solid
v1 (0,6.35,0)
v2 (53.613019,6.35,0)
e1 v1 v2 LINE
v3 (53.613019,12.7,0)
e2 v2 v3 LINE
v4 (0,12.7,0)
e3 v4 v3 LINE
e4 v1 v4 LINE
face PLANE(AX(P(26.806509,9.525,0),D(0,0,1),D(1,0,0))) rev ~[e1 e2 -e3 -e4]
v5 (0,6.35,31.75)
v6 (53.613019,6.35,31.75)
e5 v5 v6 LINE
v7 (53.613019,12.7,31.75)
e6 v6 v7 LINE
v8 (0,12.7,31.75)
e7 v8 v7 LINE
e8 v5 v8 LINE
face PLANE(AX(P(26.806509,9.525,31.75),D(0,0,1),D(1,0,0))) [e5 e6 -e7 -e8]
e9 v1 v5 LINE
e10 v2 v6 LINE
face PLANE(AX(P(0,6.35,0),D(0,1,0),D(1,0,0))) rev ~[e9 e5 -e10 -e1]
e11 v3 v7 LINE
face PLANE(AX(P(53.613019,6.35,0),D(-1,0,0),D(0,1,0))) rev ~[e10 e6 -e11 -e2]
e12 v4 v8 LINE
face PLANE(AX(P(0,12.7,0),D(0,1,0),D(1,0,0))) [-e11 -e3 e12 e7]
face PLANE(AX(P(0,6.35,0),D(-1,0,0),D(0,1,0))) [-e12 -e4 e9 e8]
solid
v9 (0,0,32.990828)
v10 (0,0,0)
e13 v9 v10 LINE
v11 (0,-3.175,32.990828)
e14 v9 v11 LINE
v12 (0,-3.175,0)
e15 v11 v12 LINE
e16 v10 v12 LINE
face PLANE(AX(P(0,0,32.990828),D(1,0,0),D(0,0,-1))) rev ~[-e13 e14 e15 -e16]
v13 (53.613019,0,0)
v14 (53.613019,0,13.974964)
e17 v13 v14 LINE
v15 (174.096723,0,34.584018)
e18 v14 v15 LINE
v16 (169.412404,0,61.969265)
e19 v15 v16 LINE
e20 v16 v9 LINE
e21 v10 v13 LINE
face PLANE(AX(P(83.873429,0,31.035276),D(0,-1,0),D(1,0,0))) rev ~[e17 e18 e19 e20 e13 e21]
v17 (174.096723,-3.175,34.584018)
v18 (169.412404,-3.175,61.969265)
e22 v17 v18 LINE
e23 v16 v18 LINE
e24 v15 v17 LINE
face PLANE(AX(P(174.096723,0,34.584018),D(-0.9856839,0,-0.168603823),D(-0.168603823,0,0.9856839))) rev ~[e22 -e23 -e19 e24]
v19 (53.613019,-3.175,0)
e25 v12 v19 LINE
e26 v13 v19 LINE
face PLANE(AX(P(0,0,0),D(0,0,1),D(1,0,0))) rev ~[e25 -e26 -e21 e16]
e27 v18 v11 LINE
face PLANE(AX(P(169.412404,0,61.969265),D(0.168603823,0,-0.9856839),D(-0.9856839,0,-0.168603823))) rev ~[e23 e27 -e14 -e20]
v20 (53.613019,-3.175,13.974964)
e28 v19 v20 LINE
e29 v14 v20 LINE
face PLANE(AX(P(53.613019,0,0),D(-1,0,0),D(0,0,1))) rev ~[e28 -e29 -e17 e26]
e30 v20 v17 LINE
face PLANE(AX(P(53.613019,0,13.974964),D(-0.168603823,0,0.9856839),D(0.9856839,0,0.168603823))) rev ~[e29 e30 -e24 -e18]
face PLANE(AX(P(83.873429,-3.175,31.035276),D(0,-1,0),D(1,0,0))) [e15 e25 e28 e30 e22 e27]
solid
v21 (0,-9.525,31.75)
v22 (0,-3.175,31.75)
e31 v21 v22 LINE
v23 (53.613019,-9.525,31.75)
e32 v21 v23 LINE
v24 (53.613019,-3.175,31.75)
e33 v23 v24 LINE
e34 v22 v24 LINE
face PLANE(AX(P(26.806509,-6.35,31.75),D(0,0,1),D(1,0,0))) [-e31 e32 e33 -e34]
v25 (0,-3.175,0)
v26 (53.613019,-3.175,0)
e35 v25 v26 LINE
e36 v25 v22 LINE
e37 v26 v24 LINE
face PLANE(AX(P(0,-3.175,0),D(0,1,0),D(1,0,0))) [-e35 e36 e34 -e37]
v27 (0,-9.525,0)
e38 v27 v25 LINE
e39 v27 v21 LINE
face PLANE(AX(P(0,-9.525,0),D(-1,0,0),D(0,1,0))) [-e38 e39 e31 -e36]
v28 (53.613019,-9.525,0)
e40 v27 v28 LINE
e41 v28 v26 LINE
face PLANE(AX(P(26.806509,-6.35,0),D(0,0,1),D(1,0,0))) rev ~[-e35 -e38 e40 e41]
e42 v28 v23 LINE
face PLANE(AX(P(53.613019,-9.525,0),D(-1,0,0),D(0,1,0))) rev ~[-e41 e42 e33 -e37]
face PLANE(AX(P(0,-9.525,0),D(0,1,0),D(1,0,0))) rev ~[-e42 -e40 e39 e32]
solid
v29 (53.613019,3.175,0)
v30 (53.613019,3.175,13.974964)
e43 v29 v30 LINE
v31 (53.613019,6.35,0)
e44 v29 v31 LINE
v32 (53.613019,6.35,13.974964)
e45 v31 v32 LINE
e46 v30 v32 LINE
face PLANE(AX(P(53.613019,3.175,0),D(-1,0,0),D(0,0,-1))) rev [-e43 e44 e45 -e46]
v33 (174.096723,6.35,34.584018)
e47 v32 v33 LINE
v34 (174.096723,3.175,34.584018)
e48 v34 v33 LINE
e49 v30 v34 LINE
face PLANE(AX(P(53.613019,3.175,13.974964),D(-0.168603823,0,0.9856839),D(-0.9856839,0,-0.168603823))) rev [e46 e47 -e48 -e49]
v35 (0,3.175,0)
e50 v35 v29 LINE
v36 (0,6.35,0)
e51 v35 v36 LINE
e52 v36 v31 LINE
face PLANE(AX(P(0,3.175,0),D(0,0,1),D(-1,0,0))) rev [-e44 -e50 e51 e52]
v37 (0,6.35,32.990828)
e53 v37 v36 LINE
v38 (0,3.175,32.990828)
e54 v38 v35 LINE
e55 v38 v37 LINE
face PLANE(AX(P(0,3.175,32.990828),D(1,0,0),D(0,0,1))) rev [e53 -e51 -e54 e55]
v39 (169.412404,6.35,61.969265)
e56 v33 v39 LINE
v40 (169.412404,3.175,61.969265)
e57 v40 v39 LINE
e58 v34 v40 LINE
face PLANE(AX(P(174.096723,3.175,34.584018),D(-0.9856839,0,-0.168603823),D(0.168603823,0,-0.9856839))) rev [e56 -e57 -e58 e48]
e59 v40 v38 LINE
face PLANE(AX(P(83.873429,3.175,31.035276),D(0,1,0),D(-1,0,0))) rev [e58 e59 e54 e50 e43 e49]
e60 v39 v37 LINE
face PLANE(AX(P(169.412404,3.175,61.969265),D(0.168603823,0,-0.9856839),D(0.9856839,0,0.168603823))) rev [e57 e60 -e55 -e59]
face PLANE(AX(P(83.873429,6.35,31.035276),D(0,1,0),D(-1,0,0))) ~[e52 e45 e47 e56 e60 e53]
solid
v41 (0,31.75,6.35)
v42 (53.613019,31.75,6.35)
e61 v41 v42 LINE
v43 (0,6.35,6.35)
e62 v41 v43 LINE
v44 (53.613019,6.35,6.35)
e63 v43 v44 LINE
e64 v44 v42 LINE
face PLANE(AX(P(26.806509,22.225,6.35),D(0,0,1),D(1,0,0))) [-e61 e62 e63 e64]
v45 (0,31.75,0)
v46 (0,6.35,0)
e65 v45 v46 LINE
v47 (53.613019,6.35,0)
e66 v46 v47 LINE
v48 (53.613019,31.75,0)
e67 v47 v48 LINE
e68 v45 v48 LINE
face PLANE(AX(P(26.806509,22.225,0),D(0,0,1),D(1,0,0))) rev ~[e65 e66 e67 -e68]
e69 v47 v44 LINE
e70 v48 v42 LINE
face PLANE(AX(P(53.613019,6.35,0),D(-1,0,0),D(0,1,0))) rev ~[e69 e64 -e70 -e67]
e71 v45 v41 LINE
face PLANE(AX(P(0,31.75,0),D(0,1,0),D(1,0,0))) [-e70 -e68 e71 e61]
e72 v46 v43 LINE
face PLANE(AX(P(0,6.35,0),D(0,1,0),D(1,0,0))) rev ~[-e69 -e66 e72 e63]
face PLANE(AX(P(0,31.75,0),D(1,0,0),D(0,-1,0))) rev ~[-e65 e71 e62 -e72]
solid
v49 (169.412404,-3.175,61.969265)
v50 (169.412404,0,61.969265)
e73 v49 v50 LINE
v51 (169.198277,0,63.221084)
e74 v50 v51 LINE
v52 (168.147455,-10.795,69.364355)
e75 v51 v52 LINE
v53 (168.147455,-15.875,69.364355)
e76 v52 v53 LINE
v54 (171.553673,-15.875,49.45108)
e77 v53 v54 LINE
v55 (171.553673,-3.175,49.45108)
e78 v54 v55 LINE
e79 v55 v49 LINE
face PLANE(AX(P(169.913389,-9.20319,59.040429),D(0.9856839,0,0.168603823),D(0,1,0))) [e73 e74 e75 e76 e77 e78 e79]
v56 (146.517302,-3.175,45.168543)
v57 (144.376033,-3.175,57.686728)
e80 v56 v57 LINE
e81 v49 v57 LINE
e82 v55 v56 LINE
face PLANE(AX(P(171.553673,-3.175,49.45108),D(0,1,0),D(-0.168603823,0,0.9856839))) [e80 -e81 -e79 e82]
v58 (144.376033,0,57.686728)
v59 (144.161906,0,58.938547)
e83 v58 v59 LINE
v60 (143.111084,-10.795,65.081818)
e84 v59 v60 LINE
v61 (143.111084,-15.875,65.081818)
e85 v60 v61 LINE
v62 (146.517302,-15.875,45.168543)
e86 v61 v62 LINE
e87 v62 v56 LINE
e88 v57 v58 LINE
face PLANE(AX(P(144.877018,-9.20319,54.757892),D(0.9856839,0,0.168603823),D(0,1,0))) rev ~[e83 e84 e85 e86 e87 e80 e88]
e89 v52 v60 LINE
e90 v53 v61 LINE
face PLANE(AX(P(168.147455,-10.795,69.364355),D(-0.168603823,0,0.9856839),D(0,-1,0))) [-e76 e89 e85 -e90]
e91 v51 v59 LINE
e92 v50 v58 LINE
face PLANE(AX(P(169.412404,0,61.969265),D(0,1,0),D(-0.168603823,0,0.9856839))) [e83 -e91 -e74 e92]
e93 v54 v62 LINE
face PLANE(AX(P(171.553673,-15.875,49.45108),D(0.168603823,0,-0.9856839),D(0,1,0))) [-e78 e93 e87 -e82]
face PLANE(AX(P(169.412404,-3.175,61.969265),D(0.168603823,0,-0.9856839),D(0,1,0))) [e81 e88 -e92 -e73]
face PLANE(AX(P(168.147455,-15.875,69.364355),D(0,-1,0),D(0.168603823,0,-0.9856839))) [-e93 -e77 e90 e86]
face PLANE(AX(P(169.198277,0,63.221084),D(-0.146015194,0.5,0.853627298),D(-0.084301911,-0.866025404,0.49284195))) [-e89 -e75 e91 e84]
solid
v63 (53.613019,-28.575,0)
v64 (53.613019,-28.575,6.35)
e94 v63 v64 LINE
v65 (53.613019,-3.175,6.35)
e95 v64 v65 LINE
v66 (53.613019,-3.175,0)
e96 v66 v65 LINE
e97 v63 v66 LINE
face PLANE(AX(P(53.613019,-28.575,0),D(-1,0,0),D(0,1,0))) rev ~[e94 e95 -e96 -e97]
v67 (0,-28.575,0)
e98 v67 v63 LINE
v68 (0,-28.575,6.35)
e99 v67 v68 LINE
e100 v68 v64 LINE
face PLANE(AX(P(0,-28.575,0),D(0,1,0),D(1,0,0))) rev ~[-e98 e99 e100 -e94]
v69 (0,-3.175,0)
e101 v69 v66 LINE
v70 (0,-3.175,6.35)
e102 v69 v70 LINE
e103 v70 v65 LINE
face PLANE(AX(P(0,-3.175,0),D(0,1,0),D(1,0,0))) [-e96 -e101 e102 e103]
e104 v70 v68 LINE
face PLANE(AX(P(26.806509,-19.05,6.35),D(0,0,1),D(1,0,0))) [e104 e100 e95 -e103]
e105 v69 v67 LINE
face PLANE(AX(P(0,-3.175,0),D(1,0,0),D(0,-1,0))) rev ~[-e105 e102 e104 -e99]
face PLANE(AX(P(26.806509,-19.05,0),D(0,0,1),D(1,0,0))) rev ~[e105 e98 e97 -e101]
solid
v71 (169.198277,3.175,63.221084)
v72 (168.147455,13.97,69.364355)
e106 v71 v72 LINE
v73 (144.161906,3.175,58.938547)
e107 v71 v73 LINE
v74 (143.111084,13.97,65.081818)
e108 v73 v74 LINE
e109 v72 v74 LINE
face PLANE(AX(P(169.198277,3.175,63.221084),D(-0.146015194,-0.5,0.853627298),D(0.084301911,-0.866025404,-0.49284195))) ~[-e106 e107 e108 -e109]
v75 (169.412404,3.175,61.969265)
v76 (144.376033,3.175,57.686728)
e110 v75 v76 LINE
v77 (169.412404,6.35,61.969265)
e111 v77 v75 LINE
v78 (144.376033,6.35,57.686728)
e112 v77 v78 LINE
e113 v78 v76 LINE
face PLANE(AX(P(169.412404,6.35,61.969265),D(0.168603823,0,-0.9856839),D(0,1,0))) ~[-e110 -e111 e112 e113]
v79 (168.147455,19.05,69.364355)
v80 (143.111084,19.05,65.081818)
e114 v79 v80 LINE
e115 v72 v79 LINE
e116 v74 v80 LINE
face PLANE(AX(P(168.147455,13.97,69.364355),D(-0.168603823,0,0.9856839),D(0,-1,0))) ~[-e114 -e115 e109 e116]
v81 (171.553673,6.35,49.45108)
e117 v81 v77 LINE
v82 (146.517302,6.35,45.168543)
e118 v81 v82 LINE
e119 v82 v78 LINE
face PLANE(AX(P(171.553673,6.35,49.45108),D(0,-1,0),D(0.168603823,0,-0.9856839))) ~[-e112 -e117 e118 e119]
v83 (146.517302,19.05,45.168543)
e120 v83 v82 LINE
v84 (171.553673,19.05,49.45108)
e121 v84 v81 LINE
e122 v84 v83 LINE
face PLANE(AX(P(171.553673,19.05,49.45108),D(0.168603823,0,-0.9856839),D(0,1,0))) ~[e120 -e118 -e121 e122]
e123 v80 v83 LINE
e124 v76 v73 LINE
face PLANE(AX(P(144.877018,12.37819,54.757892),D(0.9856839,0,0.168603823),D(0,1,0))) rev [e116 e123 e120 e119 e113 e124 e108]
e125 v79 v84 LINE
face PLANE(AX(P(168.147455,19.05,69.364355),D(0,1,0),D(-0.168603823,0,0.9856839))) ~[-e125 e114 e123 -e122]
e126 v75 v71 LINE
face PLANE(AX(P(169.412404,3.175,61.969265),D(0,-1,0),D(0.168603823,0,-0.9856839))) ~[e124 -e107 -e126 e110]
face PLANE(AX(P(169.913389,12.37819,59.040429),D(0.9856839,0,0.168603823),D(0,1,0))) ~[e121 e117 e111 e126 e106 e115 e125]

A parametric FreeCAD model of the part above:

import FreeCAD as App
import Part
import Sketcher

V = App.Vector
Q = App.Units.Quantity

doc = App.newDocument("Part")
body = doc.addObject("PartDesign::Body", "Body")

# Sketch on XZ plane
sketch1 = doc.addObject("Sketcher::SketchObject", "Sketch")
body.addObject(sketch1)
sketch1.AttachmentSupport = (doc.XZ_Plane, [""])
sketch1.MapMode = "FlatFace"
sketch1.addGeometry([
    Part.LineSegment(V(0, 32.990828, 0), V(0, 0, 0)),  # 0
    Part.LineSegment(V(0, 0, 0), V(53.613019, 0, 0)),  # 1
    Part.LineSegment(V(53.613019, 0, 0), V(53.613019, 13.974964, 0)),  # 2
    Part.LineSegment(V(53.613019, 13.974964, 0), V(174.096723, 34.584018, 0)),  # 3
    Part.LineSegment(V(174.096723, 34.584018, 0), V(169.412404, 61.969265, 0)),  # 4
    Part.LineSegment(V(169.412404, 61.969265, 0), V(0, 32.990828, 0)),  # 5
], False)
sketch1.addConstraint([
    Sketcher.Constraint("Coincident", 0, 2, 1, 1),
    Sketcher.Constraint("Coincident", 1, 2, 2, 1),
    Sketcher.Constraint("Coincident", 2, 2, 3, 1),
    Sketcher.Constraint("Coincident", 3, 2, 4, 1),
    Sketcher.Constraint("Coincident", 4, 2, 5, 1),
    Sketcher.Constraint("Coincident", 5, 2, 0, 1),
    Sketcher.Constraint("Vertical", 0),
    Sketcher.Constraint("Horizontal", 1),
    Sketcher.Constraint("Vertical", 2),
    Sketcher.Constraint("Coincident", 0, 2, -1, 1),
    Sketcher.Constraint("Perpendicular", 3, 4),
    Sketcher.Constraint("Perpendicular", 4, 5),
    Sketcher.Constraint("DistanceX", 1, 1, 1, 2, Q("53.613019 mm")),
    Sketcher.Constraint("DistanceY", 0, 2, 0, 1, Q("32.990828 mm")),
    Sketcher.Constraint("DistanceY", 2, 2, 4, 2, Q("47.994301 mm")),
    Sketcher.Constraint("Distance", 4, Q("27.782991 mm")),
    Sketcher.Constraint("DistanceY", 2, 1, 2, 2, Q("13.974964 mm")),
])
pad1 = doc.addObject("PartDesign::Pad", "Pad")
body.addObject(pad1)
pad1.Profile = sketch1
pad1.Length = Q("0.125 in")
body2 = doc.addObject("PartDesign::Body", "Body001")

# Sketch on an angled plane
sketch2 = doc.addObject("Sketcher::SketchObject", "Sketch001")
body2.addObject(sketch2)
sketch2.Placement = App.Placement(V(174.895152, 0, 29.916276), App.Rotation(V(0, 1, 0), V(-0.168603823, 0, 0.9856839), V(0.9856839, 0, 0.168603823), "ZXY"))
sketch2.addGeometry([
    Part.LineSegment(V(-3.175, 32.518528, 0), V(0, 32.518528, 0)),  # 0
    Part.LineSegment(V(0, 32.518528, 0), V(0, 33.788528, 0)),  # 1
    Part.LineSegment(V(0, 33.788528, 0), V(-10.795, 40.021024, 0)),  # 2
    Part.LineSegment(V(-10.795, 40.021024, 0), V(-15.875, 40.021024, 0)),  # 3
    Part.LineSegment(V(-15.875, 40.021024, 0), V(-15.875, 19.818528, 0)),  # 4
    Part.LineSegment(V(-15.875, 19.818528, 0), V(-3.175, 19.818528, 0)),  # 5
    Part.LineSegment(V(-3.175, 19.818528, 0), V(-3.175, 32.518528, 0)),  # 6
], False)
sketch2.addConstraint([
    Sketcher.Constraint("Coincident", 0, 2, 1, 1),
    Sketcher.Constraint("Coincident", 1, 2, 2, 1),
    Sketcher.Constraint("Coincident", 2, 2, 3, 1),
    Sketcher.Constraint("Coincident", 3, 2, 4, 1),
    Sketcher.Constraint("Coincident", 4, 2, 5, 1),
    Sketcher.Constraint("Coincident", 5, 2, 6, 1),
    Sketcher.Constraint("Coincident", 6, 2, 0, 1),
    Sketcher.Constraint("Horizontal", 0),
    Sketcher.Constraint("Vertical", 1),
    Sketcher.Constraint("Horizontal", 3),
    Sketcher.Constraint("Vertical", 4),
    Sketcher.Constraint("Horizontal", 5),
    Sketcher.Constraint("Vertical", 6),
    Sketcher.Constraint("PointOnObject", 0, 2, -2),
    Sketcher.Constraint("Equal", 5, 6),
    Sketcher.Constraint("DistanceX", 3, 2, 3, 1, Q("0.2 in")),
    Sketcher.Constraint("DistanceX", 5, 1, 5, 2, Q("0.5 in")),
    Sketcher.Constraint("Angle", 2, Q("150 deg")),
    Sketcher.Constraint("DistanceY", 1, 1, 1, 2, Q("0.05 in")),
    Sketcher.Constraint("DistanceX", 0, 1, 0, 2, Q("0.125 in")),
    Sketcher.Constraint("DistanceY", -1, 1, 0, 2, Q("32.518528 mm")),
])
pad2 = doc.addObject("PartDesign::Pad", "Pad001")
body2.addObject(pad2)
pad2.Profile = sketch2
pad2.Length = Q("1 in")
pad2.Reversed = True
body3 = doc.addObject("PartDesign::Body", "Body002")
doc.recompute()

mirroring = doc.addObject("Part::Mirroring", "Mirroring")
mirroring.Source = body2
mirroring.Base = V(0, 1.5875, 0)
mirroring.Normal = V(0, -1, 0)
body3.BaseFeature = mirroring
doc.recompute()
body4 = doc.addObject("PartDesign::Body", "Body003")
doc.recompute()

mirroring2 = doc.addObject("Part::Mirroring", "Mirroring001")
mirroring2.Source = body
mirroring2.Base = V(0, 1.5875, 0)
mirroring2.Normal = V(0, -1, 0)
body4.BaseFeature = mirroring2
doc.recompute()
body5 = doc.addObject("PartDesign::Body", "Body004")

# Sketch on XY plane
sketch3 = doc.addObject("Sketcher::SketchObject", "Sketch002")
body5.addObject(sketch3)
sketch3.AttachmentSupport = (doc.getObject("XY_Plane004"), [""])
sketch3.MapMode = "FlatFace"
sketch3.addGeometry([
    Part.LineSegment(V(0, -28.575, 0), V(53.613019, -28.575, 0)),
    Part.LineSegment(V(53.613019, -28.575, 0), V(53.613019, -3.175, 0)),
    Part.LineSegment(V(53.613019, -3.175, 0), V(0, -3.175, 0)),
    Part.LineSegment(V(0, -3.175, 0), V(0, -28.575, 0)),
], False)
sketch3.addConstraint([
    Sketcher.Constraint("Coincident", 0, 2, 1, 1),
    Sketcher.Constraint("Coincident", 1, 2, 2, 1),
    Sketcher.Constraint("Coincident", 2, 2, 3, 1),
    Sketcher.Constraint("Coincident", 3, 2, 0, 1),
    Sketcher.Constraint("Horizontal", 0),
    Sketcher.Constraint("Vertical", 1),
    Sketcher.Constraint("Horizontal", 2),
    Sketcher.Constraint("Vertical", 3),
    Sketcher.Constraint("PointOnObject", 2, 2, -2),
    Sketcher.Constraint("DistanceY", 1, 1, 1, 2, Q("1 in")),
    Sketcher.Constraint("DistanceY", 0, 2, -1, 1, Q("1.125 in")),
    Sketcher.Constraint("DistanceX", 0, 1, 0, 2, Q("53.613019 mm")),
])
pad3 = doc.addObject("PartDesign::Pad", "Pad002")
body5.addObject(pad3)
pad3.Profile = sketch3
pad3.Length = Q("0.25 in")
body6 = doc.addObject("PartDesign::Body", "Body005")

# Sketch on XY plane
sketch4 = doc.addObject("Sketcher::SketchObject", "Sketch003")
body6.addObject(sketch4)
sketch4.AttachmentSupport = (doc.getObject("XY_Plane005"), [""])
sketch4.MapMode = "FlatFace"
sketch4.addGeometry([
    Part.LineSegment(V(0, 31.75, 0), V(0, 6.35, 0)),
    Part.LineSegment(V(0, 6.35, 0), V(53.613019, 6.35, 0)),
    Part.LineSegment(V(53.613019, 6.35, 0), V(53.613019, 31.75, 0)),
    Part.LineSegment(V(53.613019, 31.75, 0), V(0, 31.75, 0)),
], False)
sketch4.addConstraint([
    Sketcher.Constraint("Coincident", 0, 2, 1, 1),
    Sketcher.Constraint("Coincident", 1, 2, 2, 1),
    Sketcher.Constraint("Coincident", 2, 2, 3, 1),
    Sketcher.Constraint("Coincident", 3, 2, 0, 1),
    Sketcher.Constraint("Vertical", 0),
    Sketcher.Constraint("Horizontal", 1),
    Sketcher.Constraint("Vertical", 2),
    Sketcher.Constraint("Horizontal", 3),
    Sketcher.Constraint("PointOnObject", 0, 2, -2),
    Sketcher.Constraint("DistanceY", 0, 2, 0, 1, Q("1 in")),
    Sketcher.Constraint("DistanceY", -1, 1, 0, 2, Q("0.25 in")),
    Sketcher.Constraint("DistanceX", 1, 1, 1, 2, Q("53.613019 mm")),
])
pad4 = doc.addObject("PartDesign::Pad", "Pad003")
body6.addObject(pad4)
pad4.Profile = sketch4
pad4.Length = Q("0.25 in")
body7 = doc.addObject("PartDesign::Body", "Body006")

# Sketch on XY plane
sketch5 = doc.addObject("Sketcher::SketchObject", "Sketch004")
body7.addObject(sketch5)
sketch5.AttachmentSupport = (doc.getObject("XY_Plane006"), [""])
sketch5.MapMode = "FlatFace"
sketch5.addGeometry([
    Part.LineSegment(V(0, 12.7, 0), V(0, 6.35, 0)),
    Part.LineSegment(V(0, 6.35, 0), V(53.613019, 6.35, 0)),
    Part.LineSegment(V(53.613019, 6.35, 0), V(53.613019, 12.7, 0)),
    Part.LineSegment(V(53.613019, 12.7, 0), V(0, 12.7, 0)),
], False)
sketch5.addConstraint([
    Sketcher.Constraint("Coincident", 0, 2, 1, 1),
    Sketcher.Constraint("Coincident", 1, 2, 2, 1),
    Sketcher.Constraint("Coincident", 2, 2, 3, 1),
    Sketcher.Constraint("Coincident", 3, 2, 0, 1),
    Sketcher.Constraint("Vertical", 0),
    Sketcher.Constraint("Horizontal", 1),
    Sketcher.Constraint("Vertical", 2),
    Sketcher.Constraint("Horizontal", 3),
    Sketcher.Constraint("PointOnObject", 0, 2, -2),
    Sketcher.Constraint("DistanceY", 0, 2, 0, 1, Q("0.25 in")),
    Sketcher.Constraint("DistanceY", -1, 1, 2, 2, Q("0.5 in")),
    Sketcher.Constraint("DistanceX", 1, 1, 1, 2, Q("53.613019 mm")),
])
pad5 = doc.addObject("PartDesign::Pad", "Pad004")
body7.addObject(pad5)
pad5.Profile = sketch5
pad5.Length = Q("1.25 in")
body8 = doc.addObject("PartDesign::Body", "Body007")

# Sketch on XY plane
sketch6 = doc.addObject("Sketcher::SketchObject", "Sketch005")
body8.addObject(sketch6)
sketch6.AttachmentSupport = (doc.getObject("XY_Plane007"), [""])
sketch6.MapMode = "FlatFace"
sketch6.addGeometry([
    Part.LineSegment(V(0, -3.175, 0), V(0, -9.525, 0)),
    Part.LineSegment(V(0, -9.525, 0), V(53.613019, -9.525, 0)),
    Part.LineSegment(V(53.613019, -9.525, 0), V(53.613019, -3.175, 0)),
    Part.LineSegment(V(53.613019, -3.175, 0), V(0, -3.175, 0)),
], False)
sketch6.addConstraint([
    Sketcher.Constraint("Coincident", 0, 2, 1, 1),
    Sketcher.Constraint("Coincident", 1, 2, 2, 1),
    Sketcher.Constraint("Coincident", 2, 2, 3, 1),
    Sketcher.Constraint("Coincident", 3, 2, 0, 1),
    Sketcher.Constraint("Vertical", 0),
    Sketcher.Constraint("Horizontal", 1),
    Sketcher.Constraint("Vertical", 2),
    Sketcher.Constraint("Horizontal", 3),
    Sketcher.Constraint("PointOnObject", 0, 2, -2),
    Sketcher.Constraint("DistanceY", 0, 2, 0, 1, Q("0.25 in")),
    Sketcher.Constraint("DistanceY", 0, 2, -1, 1, Q("0.375 in")),
    Sketcher.Constraint("DistanceX", 1, 1, 1, 2, Q("53.613019 mm")),
])
pad6 = doc.addObject("PartDesign::Pad", "Pad005")
body8.addObject(pad6)
pad6.Profile = sketch6
pad6.Length = Q("1.25 in")
mirroring.Visibility = False
mirroring2.Visibility = False

doc.recompute()
